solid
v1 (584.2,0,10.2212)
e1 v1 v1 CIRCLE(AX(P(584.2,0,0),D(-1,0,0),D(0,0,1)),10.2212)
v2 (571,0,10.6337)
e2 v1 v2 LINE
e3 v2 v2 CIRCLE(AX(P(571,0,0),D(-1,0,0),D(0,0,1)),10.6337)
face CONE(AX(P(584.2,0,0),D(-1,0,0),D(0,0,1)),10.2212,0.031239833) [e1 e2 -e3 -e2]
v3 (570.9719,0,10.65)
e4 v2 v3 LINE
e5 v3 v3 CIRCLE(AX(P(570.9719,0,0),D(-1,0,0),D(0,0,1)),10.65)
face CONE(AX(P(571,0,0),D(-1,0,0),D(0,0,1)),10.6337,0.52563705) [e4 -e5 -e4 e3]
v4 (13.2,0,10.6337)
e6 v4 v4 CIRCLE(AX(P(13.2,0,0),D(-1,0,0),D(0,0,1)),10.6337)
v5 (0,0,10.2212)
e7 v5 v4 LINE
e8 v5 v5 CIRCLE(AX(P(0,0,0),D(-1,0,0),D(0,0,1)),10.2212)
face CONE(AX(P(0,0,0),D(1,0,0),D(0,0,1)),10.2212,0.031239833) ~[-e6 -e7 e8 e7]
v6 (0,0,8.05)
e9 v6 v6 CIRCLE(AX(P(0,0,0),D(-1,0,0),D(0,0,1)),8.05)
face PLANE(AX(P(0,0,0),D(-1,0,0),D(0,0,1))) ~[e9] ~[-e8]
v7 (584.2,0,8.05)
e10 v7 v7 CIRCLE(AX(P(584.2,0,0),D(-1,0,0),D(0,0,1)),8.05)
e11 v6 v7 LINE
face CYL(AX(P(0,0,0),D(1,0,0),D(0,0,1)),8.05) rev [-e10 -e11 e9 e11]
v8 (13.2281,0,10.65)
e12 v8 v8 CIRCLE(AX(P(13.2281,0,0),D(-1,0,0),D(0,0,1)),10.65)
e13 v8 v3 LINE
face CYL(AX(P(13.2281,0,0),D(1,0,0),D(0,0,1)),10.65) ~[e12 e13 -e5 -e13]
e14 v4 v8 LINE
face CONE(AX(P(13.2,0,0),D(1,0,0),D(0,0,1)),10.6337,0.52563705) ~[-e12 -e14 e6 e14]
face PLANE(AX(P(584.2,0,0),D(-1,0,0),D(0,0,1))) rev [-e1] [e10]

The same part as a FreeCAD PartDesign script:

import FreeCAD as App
import Part
import Sketcher

V = App.Vector
Q = App.Units.Quantity

doc = App.newDocument("Part")
body = doc.addObject("PartDesign::Body", "Body")

# Sketch on XZ plane
sketch1 = body.newObject("Sketcher::SketchObject", "Sketch")
sketch1.AttachmentSupport = (doc.getObject("XZ_Plane"), [""])
sketch1.MapMode = "FlatFace"
sketch1.addGeometry([
    Part.LineSegment(V(584.2, 8.05, 0), V(0, 8.05, 0)),  # 0
    Part.LineSegment(V(0, 8.05, 0), V(0, 10.221, 0)),  # 1
    Part.LineSegment(V(0, 10.221, 0), V(13.2, 10.634, 0)),  # 2
    Part.LineSegment(V(13.2, 10.634, 0), V(13.228, 10.65, 0)),  # 3
    Part.LineSegment(V(13.228, 10.65, 0), V(570.972, 10.65, 0)),  # 4
    Part.LineSegment(V(570.972, 10.65, 0), V(571, 10.634, 0)),  # 5
    Part.LineSegment(V(571, 10.634, 0), V(584.2, 10.221, 0)),  # 6
    Part.LineSegment(V(584.2, 10.221, 0), V(584.2, 8.05, 0)),  # 7
], False)
sketch1.addConstraint([
    Sketcher.Constraint("Coincident", 0, 2, 1, 1),
    Sketcher.Constraint("Coincident", 1, 2, 2, 1),
    Sketcher.Constraint("Coincident", 2, 2, 3, 1),
    Sketcher.Constraint("Coincident", 3, 2, 4, 1),
    Sketcher.Constraint("Coincident", 4, 2, 5, 1),
    Sketcher.Constraint("Coincident", 5, 2, 6, 1),
    Sketcher.Constraint("Coincident", 6, 2, 7, 1),
    Sketcher.Constraint("Coincident", 7, 2, 0, 1),
    Sketcher.Constraint("Horizontal", 0),
    Sketcher.Constraint("Vertical", 1),
    Sketcher.Constraint("Horizontal", 4),
    Sketcher.Constraint("Vertical", 7),
    Sketcher.Constraint("PointOnObject", 0, 2, -2),
    Sketcher.Constraint("Horizontal", 2, 2, 5, 2),
    Sketcher.Constraint("Horizontal", 1, 2, 6, 2),
    Sketcher.Constraint("Equal", 3, 5),
    Sketcher.Constraint("Equal", 2, 6),
    Sketcher.Constraint("DistanceX", 0, 2, 0, 1, Q("23 in")),
    Sketcher.Constraint("Angle", 2, Q("1.79 deg")),
    Sketcher.Constraint("DistanceX", -1, 1, 2, 2, Q("13.2 mm")),
    Sketcher.Constraint("DistanceY", 0, 2, 3, 2, Q("2.6 mm")),
    Sketcher.Constraint("DistanceX", 4, 1, 4, 2, Q("557.7438 mm")),
    Sketcher.Constraint("DistanceY", 1, 1, 1, 2, Q("2.1712 mm")),
    Sketcher.Constraint("DistanceY", -1, 1, 1, 2, Q("0.4024 in")),
])
revolution = body.newObject("PartDesign::Revolution", "Revolution")
revolution.Profile = sketch1
revolution.ReferenceAxis = (sketch1, ["H_Axis"])
revolution.Angle = 360

doc.recompute()
